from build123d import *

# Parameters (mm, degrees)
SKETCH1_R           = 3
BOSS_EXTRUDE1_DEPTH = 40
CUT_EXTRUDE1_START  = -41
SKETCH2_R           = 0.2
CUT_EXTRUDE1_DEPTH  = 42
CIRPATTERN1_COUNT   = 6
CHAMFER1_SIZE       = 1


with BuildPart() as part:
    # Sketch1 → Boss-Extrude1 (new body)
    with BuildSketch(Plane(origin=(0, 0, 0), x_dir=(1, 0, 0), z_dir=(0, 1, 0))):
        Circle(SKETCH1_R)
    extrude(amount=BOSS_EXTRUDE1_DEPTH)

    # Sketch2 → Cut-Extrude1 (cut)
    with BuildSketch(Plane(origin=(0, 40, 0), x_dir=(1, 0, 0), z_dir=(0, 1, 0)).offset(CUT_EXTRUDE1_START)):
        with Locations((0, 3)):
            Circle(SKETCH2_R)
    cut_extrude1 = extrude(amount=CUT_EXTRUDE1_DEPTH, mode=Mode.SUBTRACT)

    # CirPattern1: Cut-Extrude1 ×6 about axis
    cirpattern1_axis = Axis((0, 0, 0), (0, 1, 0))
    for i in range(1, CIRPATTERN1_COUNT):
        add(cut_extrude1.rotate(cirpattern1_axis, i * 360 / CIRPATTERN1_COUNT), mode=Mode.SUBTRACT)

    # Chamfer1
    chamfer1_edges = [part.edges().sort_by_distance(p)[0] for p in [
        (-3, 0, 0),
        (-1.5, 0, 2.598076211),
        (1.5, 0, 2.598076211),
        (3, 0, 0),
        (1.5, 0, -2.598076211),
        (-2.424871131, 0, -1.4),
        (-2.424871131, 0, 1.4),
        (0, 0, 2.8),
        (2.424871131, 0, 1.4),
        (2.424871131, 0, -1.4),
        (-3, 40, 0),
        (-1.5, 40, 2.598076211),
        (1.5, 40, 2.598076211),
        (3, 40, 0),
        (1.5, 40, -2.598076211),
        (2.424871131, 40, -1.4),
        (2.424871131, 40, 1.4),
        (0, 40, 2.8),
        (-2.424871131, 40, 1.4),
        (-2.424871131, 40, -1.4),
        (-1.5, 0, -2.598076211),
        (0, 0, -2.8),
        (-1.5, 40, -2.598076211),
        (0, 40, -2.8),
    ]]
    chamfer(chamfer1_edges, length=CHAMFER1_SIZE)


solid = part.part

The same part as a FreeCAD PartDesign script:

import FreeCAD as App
import Part
import Sketcher
from FreeCAD import Vector


def edges_at(feature, points):
    """Names of the edges that pass closest to the given points."""
    edges = feature.Shape.Edges
    near = lambda p: min(range(len(edges)), key=lambda i: edges[i].distToShape(Part.Vertex(*p))[0])
    return sorted({f"Edge{near(p) + 1}" for p in points})

doc = App.newDocument("Part")
params = doc.addObject("Spreadsheet::Sheet", "Params")
for row, (alias, value) in enumerate([
    ("sketch1_diameter", "6 mm"),
    ("pad1_length", "40 mm"),
    ("sketch2_diameter", "0.4 mm"),
    ("pocket1_length", "42 mm"),
    ("chamfer_size", "1 mm"),
], start=1):
    params.set(f"A{row}", alias)
    params.set(f"B{row}", "=" + value)
    params.setAlias(f"B{row}", alias)

body = doc.addObject("PartDesign::Body", "Body")

sketch1 = doc.addObject("Sketcher::SketchObject", "Sketch")
body.addObject(sketch1)
sketch1.AttachmentSupport = (doc.XZ_Plane, [""])
sketch1.MapMode = "FlatFace"
sketch1.addGeometry(Part.Circle(Vector(0, 0, 0), Vector(0, 0, 1), 3), False)
sketch1.addConstraint([
    Sketcher.Constraint("Coincident", 0, 3, -1, 1),
    Sketcher.Constraint("Diameter", 0, 6.0),
])
sketch1.setExpression("Constraints[1]", "Params.sketch1_diameter")
pad1 = doc.addObject("PartDesign::Pad", "Pad")
body.addObject(pad1)
pad1.Profile = sketch1
pad1.setExpression("Length", "Params.pad1_length")
pad1.Reversed = True

sketch2 = doc.addObject("Sketcher::SketchObject", "Sketch001")
body.addObject(sketch2)
sketch2.AttachmentSupport = (doc.XZ_Plane, [""])
sketch2.MapMode = "FlatFace"
sketch2.AttachmentOffset = App.Placement(Vector(0, 0, 1), App.Rotation())
sketch2.addGeometry(Part.Circle(Vector(0, -3, 0), Vector(0, 0, 1), 0.2), False)
sketch2.addConstraint([
    Sketcher.Constraint("PointOnObject", 0, 3, -2),
    Sketcher.Constraint("Diameter", 0, 0.4),
    Sketcher.Constraint("DistanceY", 0, 3, -1, 1, 3.0),
])
sketch2.setExpression("Constraints[1]", "Params.sketch2_diameter")
pocket1 = doc.addObject("PartDesign::Pocket", "Pocket")
body.addObject(pocket1)
pocket1.Profile = sketch2
pocket1.setExpression("Length", "Params.pocket1_length")
doc.recompute()

polarpattern = doc.addObject("PartDesign::PolarPattern", "PolarPattern")
body.addObject(polarpattern)
polarpattern.Originals = [pocket1]
polarpattern.Axis = (doc.Y_Axis, [""])
polarpattern.Angle = 360
polarpattern.Occurrences = 6
body.Tip = polarpattern
doc.recompute()

chamfer = doc.addObject("PartDesign::Chamfer", "Chamfer")
body.addObject(chamfer)
chamfer.Base = (polarpattern, edges_at(polarpattern, [
    (-3, 0, 0),
    (-1.5, 0, 2.598),
    (1.5, 0, 2.598),
    (3, 0, 0),
    (1.5, 0, -2.598),
    (-2.425, 0, -1.4),
    (-2.425, 0, 1.4),
    (0, 0, 2.8),
    (2.425, 0, 1.4),
    (2.425, 0, -1.4),
    (-3, 40, 0),
    (-1.5, 40, 2.598),
    (1.5, 40, 2.598),
    (3, 40, 0),
    (1.5, 40, -2.598),
    (2.425, 40, -1.4),
    (2.425, 40, 1.4),
    (0, 40, 2.8),
    (-2.425, 40, 1.4),
    (-2.425, 40, -1.4),
    (-1.5, 0, -2.598),
    (0, 0, -2.8),
    (-1.5, 40, -2.598),
    (0, 40, -2.8),
]))
chamfer.setExpression("Size", "Params.chamfer_size")

doc.recompute()
